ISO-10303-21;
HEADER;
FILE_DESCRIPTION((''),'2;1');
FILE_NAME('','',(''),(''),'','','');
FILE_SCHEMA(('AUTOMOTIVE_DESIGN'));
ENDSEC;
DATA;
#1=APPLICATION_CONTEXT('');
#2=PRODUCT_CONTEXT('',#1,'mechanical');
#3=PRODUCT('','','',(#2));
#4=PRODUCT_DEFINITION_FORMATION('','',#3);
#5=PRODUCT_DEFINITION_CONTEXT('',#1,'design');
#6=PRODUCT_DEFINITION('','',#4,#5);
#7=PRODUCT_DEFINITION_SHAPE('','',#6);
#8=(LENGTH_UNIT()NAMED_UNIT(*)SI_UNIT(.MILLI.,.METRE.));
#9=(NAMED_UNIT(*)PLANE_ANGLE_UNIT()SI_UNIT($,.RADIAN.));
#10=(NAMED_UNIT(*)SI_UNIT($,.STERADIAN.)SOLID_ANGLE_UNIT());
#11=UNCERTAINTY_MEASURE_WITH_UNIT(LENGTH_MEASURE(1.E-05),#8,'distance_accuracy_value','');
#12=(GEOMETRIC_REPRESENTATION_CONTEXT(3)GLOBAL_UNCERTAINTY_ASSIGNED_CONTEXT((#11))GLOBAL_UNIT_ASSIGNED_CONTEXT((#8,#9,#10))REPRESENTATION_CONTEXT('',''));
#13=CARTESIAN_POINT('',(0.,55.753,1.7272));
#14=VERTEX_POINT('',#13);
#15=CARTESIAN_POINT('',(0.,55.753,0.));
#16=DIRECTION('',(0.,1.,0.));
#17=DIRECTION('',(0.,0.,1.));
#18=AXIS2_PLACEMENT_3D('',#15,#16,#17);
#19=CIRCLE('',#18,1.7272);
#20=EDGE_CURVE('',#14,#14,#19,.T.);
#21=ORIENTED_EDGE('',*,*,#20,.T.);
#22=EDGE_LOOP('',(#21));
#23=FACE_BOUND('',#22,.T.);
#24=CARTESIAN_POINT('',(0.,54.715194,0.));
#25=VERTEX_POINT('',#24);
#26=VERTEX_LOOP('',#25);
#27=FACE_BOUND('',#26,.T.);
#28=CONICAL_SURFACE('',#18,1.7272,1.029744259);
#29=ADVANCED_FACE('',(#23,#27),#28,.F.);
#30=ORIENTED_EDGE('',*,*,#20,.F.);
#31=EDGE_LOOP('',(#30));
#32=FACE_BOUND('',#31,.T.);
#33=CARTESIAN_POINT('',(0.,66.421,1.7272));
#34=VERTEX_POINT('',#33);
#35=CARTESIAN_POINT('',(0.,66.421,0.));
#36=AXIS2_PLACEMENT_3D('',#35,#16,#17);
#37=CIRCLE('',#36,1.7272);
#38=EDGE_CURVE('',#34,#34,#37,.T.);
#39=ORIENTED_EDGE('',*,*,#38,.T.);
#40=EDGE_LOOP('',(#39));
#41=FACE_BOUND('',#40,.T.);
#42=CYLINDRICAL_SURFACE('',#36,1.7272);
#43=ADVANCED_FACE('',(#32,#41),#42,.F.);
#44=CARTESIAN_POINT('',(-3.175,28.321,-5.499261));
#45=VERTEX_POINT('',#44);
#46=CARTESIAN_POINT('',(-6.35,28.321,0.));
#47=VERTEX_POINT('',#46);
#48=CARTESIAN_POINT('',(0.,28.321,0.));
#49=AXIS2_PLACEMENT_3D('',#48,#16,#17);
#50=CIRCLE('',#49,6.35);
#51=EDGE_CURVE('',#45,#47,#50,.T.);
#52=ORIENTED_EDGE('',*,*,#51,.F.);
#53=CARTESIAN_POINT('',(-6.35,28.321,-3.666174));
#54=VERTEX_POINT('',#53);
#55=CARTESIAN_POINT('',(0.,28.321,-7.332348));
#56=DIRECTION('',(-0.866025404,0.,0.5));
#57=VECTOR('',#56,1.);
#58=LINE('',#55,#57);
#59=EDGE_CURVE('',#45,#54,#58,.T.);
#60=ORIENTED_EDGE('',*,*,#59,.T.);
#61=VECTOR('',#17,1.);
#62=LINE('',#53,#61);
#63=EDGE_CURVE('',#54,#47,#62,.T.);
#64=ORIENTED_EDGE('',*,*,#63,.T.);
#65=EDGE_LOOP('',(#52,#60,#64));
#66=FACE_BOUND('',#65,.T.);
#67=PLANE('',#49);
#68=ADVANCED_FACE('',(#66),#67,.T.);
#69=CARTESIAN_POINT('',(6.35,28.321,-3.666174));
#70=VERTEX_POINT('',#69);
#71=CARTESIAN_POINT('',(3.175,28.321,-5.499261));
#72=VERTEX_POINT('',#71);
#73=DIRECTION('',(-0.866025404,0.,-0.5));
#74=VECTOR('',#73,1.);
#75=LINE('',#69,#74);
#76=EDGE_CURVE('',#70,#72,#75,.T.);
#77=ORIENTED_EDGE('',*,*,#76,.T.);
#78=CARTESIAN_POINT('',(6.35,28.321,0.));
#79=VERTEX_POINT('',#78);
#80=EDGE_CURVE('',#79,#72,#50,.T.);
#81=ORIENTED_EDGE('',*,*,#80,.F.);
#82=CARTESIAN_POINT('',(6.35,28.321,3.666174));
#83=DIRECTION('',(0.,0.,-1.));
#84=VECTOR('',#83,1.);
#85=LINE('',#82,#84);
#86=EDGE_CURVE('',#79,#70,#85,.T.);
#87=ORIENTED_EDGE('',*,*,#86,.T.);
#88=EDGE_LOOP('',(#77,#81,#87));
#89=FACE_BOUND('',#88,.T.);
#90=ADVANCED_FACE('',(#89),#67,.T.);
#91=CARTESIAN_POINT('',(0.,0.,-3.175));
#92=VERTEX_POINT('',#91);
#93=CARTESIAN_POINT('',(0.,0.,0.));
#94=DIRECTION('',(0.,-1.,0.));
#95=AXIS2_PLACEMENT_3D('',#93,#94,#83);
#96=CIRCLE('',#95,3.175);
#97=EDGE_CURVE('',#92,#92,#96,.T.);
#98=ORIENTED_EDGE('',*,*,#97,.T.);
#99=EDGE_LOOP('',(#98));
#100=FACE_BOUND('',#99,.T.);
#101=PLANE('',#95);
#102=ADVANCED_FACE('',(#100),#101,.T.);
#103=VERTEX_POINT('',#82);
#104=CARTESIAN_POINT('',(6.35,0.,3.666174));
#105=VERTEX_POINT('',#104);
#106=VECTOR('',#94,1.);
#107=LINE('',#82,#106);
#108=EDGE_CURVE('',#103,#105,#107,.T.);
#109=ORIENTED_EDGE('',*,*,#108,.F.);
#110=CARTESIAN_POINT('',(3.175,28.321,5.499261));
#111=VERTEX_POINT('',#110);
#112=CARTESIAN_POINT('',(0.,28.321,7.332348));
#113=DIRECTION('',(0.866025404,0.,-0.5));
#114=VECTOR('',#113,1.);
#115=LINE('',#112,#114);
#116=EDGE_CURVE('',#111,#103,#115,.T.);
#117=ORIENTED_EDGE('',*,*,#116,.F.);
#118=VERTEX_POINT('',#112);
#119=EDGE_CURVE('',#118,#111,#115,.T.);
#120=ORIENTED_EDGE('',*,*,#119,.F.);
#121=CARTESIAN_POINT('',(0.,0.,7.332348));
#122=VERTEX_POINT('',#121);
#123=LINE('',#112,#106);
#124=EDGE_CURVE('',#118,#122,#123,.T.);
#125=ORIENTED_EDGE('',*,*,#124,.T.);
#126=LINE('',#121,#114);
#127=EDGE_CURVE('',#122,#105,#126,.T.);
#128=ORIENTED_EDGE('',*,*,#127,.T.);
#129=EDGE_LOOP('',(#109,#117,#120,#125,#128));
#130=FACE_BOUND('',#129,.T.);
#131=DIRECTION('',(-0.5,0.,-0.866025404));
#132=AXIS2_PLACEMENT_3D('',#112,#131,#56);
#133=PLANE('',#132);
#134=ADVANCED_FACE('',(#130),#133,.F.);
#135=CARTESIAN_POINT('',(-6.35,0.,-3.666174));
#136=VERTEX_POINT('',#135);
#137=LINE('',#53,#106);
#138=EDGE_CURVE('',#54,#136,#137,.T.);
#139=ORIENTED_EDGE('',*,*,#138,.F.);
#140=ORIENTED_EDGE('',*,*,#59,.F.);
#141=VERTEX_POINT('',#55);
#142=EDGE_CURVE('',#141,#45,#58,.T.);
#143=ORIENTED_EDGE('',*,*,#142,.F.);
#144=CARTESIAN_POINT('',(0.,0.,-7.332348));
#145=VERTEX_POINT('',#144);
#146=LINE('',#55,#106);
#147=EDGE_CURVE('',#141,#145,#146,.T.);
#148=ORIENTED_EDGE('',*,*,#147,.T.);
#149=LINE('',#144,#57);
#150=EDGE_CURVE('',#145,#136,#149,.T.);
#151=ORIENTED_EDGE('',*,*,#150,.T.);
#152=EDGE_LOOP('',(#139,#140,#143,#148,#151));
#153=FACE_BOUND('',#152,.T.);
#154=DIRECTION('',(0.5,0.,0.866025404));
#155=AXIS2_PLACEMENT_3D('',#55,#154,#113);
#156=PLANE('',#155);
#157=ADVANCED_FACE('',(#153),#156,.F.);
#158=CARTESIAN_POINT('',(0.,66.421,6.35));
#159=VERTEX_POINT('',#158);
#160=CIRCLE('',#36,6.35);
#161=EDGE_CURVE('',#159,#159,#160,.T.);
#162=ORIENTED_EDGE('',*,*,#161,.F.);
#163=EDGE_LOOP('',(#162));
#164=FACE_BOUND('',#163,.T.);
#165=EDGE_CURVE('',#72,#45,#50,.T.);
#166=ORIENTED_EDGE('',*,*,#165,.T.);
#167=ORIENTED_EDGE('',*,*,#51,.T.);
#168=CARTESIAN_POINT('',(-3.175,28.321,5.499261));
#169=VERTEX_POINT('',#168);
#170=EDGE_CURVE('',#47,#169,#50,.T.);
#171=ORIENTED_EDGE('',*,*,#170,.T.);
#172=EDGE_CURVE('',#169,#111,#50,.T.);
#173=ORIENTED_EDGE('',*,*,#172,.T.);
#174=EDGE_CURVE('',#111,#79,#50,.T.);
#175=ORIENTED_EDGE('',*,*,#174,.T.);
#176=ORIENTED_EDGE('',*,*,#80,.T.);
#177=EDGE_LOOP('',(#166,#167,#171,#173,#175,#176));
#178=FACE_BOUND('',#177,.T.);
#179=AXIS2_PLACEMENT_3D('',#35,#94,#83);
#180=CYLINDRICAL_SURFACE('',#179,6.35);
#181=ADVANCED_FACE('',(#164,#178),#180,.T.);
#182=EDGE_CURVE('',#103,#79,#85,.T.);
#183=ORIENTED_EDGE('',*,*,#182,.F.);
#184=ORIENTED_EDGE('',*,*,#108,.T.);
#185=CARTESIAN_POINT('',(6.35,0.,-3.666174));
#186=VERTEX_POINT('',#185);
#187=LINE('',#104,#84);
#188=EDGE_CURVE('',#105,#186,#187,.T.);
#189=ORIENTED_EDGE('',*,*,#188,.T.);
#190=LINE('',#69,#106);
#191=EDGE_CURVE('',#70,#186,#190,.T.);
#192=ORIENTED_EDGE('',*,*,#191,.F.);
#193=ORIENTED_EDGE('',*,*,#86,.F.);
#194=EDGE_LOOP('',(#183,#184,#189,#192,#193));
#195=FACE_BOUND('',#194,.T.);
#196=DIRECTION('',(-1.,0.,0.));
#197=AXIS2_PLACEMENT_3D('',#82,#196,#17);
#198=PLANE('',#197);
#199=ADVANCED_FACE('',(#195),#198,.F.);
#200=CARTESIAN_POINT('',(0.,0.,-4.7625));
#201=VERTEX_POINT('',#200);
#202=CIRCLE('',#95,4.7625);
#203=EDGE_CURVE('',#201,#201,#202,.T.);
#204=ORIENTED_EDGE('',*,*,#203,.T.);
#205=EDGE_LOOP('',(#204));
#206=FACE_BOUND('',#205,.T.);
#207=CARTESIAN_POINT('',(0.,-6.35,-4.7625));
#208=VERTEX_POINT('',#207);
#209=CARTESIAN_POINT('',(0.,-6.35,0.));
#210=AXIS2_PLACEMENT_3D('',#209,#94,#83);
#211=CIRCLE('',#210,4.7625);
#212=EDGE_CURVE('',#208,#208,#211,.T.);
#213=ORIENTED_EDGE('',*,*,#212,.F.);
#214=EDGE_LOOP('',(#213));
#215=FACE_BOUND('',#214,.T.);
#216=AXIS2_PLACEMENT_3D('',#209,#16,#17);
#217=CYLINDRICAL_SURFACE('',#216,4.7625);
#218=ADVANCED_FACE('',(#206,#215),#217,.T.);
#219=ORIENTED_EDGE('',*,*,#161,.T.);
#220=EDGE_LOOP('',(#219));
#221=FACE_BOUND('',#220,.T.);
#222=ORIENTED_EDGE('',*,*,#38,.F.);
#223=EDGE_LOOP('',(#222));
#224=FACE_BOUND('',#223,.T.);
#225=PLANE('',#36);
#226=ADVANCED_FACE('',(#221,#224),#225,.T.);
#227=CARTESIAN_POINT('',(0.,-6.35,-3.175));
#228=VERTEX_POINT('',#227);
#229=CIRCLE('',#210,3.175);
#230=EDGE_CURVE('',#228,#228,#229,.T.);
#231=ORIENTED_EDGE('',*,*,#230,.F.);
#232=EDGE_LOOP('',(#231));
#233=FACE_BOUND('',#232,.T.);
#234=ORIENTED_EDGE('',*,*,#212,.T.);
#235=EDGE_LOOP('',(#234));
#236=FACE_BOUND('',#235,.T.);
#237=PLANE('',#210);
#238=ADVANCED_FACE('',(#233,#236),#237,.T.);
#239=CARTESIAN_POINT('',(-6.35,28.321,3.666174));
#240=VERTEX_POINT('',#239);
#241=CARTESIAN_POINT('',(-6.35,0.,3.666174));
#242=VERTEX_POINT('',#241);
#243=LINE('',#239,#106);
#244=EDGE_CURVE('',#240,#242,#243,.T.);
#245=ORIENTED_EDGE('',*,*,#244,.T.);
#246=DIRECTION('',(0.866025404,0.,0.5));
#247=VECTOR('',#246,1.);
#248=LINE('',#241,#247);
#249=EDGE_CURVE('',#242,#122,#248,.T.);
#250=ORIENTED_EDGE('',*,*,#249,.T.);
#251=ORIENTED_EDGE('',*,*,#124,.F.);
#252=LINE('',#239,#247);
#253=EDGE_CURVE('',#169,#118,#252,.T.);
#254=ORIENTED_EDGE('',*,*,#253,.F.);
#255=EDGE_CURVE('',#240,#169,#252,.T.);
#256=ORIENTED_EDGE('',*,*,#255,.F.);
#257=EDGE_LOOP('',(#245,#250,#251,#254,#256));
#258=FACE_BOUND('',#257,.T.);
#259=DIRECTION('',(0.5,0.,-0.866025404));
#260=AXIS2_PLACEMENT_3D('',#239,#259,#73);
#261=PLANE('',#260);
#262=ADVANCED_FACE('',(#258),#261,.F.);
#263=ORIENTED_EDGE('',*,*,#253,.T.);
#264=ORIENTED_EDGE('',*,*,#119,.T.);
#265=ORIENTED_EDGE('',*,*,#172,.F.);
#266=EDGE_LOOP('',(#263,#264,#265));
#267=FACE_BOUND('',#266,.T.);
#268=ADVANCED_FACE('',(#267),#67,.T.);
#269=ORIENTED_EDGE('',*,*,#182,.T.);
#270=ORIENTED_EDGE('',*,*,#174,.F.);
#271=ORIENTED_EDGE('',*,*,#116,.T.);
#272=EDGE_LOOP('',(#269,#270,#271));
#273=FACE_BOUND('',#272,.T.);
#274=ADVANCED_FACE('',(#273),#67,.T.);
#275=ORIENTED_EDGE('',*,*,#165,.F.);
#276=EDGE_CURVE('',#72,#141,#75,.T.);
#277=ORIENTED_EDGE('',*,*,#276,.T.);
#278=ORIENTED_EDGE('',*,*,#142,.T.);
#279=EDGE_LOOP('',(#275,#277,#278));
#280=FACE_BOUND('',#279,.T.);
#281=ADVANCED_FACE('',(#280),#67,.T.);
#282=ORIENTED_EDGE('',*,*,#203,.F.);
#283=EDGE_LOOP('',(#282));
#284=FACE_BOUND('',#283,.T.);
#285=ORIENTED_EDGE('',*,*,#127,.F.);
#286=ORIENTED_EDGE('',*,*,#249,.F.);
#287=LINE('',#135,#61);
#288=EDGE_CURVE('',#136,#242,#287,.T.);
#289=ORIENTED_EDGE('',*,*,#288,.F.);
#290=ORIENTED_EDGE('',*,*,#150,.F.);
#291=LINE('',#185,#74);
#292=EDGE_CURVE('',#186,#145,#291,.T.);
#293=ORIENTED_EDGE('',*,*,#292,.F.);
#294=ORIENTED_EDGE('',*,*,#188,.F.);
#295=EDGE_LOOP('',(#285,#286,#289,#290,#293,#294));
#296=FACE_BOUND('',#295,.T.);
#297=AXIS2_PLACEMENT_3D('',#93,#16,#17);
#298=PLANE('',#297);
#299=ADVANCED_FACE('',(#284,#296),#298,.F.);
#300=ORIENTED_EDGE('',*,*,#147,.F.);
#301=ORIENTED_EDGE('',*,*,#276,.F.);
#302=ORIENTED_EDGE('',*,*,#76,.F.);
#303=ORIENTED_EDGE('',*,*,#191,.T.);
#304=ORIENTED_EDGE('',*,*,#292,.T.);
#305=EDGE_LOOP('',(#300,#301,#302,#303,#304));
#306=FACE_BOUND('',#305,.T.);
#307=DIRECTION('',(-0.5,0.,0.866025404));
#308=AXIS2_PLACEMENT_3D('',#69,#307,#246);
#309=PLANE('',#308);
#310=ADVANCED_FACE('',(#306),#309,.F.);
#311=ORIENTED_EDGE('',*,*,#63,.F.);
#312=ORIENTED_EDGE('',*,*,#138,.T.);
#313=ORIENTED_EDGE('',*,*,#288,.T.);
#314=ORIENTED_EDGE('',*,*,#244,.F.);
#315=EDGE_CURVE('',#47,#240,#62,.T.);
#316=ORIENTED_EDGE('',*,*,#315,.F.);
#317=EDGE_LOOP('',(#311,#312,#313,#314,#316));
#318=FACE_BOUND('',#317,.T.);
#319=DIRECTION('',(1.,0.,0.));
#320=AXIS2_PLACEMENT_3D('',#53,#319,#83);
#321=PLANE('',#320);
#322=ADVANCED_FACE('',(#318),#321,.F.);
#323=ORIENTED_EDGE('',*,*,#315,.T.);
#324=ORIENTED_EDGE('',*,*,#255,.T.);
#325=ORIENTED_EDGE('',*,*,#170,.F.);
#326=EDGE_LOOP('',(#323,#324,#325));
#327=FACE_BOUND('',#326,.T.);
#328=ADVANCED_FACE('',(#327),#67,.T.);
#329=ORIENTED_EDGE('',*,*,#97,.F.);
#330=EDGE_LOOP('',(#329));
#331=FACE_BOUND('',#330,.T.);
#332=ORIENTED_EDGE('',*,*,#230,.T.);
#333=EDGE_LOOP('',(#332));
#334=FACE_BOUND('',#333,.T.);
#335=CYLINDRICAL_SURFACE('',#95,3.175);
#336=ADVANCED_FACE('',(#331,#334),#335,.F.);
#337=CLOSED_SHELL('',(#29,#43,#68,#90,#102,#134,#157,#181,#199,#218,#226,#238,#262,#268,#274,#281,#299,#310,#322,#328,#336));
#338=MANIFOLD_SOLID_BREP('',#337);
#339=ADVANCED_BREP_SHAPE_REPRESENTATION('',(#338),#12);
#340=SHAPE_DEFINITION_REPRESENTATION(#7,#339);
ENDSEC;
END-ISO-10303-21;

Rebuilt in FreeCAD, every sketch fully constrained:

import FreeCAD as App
import Part
import Sketcher
Q = App.Units.Quantity

doc = App.newDocument("Part")
body = doc.addObject("PartDesign::Body", "Body")

# Sketch on XZ plane
sketch1 = doc.addObject("Sketcher::SketchObject", "Sketch")
body.addObject(sketch1)
sketch1.AttachmentSupport = (doc.XZ_Plane, [""])
sketch1.MapMode = "FlatFace"
sketch1.addGeometry(Part.LineSegment(App.Vector(6.35, 3.666174, 0), App.Vector(6.35, -3.666174, 0)), False)
sketch1.addGeometry(Part.LineSegment(App.Vector(6.35, -3.666174, 0), App.Vector(0, -7.332348, 0)), False)
sketch1.addGeometry(Part.LineSegment(App.Vector(0, -7.332348, 0), App.Vector(-6.35, -3.666174, 0)), False)
sketch1.addGeometry(Part.LineSegment(App.Vector(-6.35, -3.666174, 0), App.Vector(-6.35, 3.666174, 0)), False)
sketch1.addGeometry(Part.LineSegment(App.Vector(-6.35, 3.666174, 0), App.Vector(0, 7.332348, 0)), False)
sketch1.addGeometry(Part.LineSegment(App.Vector(0, 7.332348, 0), App.Vector(6.35, 3.666174, 0)), False)
sketch1.addConstraint(Sketcher.Constraint("Coincident", 0, 2, 1, 1))
sketch1.addConstraint(Sketcher.Constraint("Coincident", 1, 2, 2, 1))
sketch1.addConstraint(Sketcher.Constraint("Coincident", 2, 2, 3, 1))
sketch1.addConstraint(Sketcher.Constraint("Coincident", 3, 2, 4, 1))
sketch1.addConstraint(Sketcher.Constraint("Coincident", 4, 2, 5, 1))
sketch1.addConstraint(Sketcher.Constraint("Coincident", 5, 2, 0, 1))
sketch1.addConstraint(Sketcher.Constraint("Vertical", 0))
sketch1.addConstraint(Sketcher.Constraint("Vertical", 3))
sketch1.addConstraint(Sketcher.Constraint("Symmetric", 0, 2, 3, 2, -1, 1))
sketch1.addConstraint(Sketcher.Constraint("Symmetric", 1, 2, 4, 2, -1, 1))
sketch1.addConstraint(Sketcher.Constraint("PointOnObject", 1, 2, -2))
sketch1.addConstraint(Sketcher.Constraint("Parallel", 2, 5))
sketch1.addConstraint(Sketcher.Constraint("Horizontal", 0, 2, 2, 2))
sketch1.addConstraint(Sketcher.Constraint("Angle", 1, Q("-150 deg")))
sketch1.addConstraint(Sketcher.Constraint("DistanceX", 2, 2, 0, 2, Q("0.5 in")))
sketch1.addConstraint(Sketcher.Constraint("DistanceY", 0, 2, 0, 1, Q("7.332348 mm")))
pad1 = doc.addObject("PartDesign::Pad", "Pad")
body.addObject(pad1)
pad1.Profile = sketch1
pad1.Length = Q("1.115 in")
pad1.Reversed = True

# Sketch on XZ plane
sketch2 = doc.addObject("Sketcher::SketchObject", "Sketch001")
body.addObject(sketch2)
sketch2.AttachmentSupport = (doc.XZ_Plane, [""])
sketch2.MapMode = "FlatFace"
sketch2.addGeometry(Part.Circle(App.Vector(0, 0, 0), App.Vector(0, 0, 1), 4.7625), False)
sketch2.addConstraint(Sketcher.Constraint("Coincident", 0, 3, -1, 1))
sketch2.addConstraint(Sketcher.Constraint("Diameter", 0, Q("0.375 in")))
pad2 = doc.addObject("PartDesign::Pad", "Pad001")
body.addObject(pad2)
pad2.Profile = sketch2
pad2.Length = Q("0.25 in")

# Sketch on XZ plane
sketch3 = doc.addObject("Sketcher::SketchObject", "Sketch002")
body.addObject(sketch3)
sketch3.AttachmentSupport = (doc.XZ_Plane, [""])
sketch3.MapMode = "FlatFace"
sketch3.AttachmentOffset = App.Placement(App.Vector(0, 0, -1.115 * 25.4), App.Rotation())
sketch3.addGeometry(Part.Circle(App.Vector(0, 0, 0), App.Vector(0, 0, 1), 6.35), False)
sketch3.addConstraint(Sketcher.Constraint("Coincident", 0, 3, -1, 1))
sketch3.addConstraint(Sketcher.Constraint("Diameter", 0, Q("0.5 in")))
pad3 = doc.addObject("PartDesign::Pad", "Pad002")
body.addObject(pad3)
pad3.Profile = sketch3
pad3.Length = Q("1.5 in")
pad3.Reversed = True

# Sketch on XZ plane
sketch4 = doc.addObject("Sketcher::SketchObject", "Sketch003")
body.addObject(sketch4)
sketch4.AttachmentSupport = (doc.XZ_Plane, [""])
sketch4.MapMode = "FlatFace"
sketch4.AttachmentOffset = App.Placement(App.Vector(0, 0, -2.615 * 25.4), App.Rotation())
sketch4.addGeometry(Part.Circle(App.Vector(0, 0, 0), App.Vector(0, 0, 1), 1.7272), False)
sketch4.addConstraint(Sketcher.Constraint("Coincident", 0, 3, -1, 1))
sketch4.addConstraint(Sketcher.Constraint("Diameter", 0, Q("0.136 in")))
doc.recompute()
hole = doc.addObject("PartDesign::Hole", "Hole")
body.addObject(hole)
hole.Profile = sketch4
hole.ThreadType = "None"
hole.Diameter = Q("0.136 in")
hole.DepthType = "Dimension"
hole.Depth = Q("0.42 in")
hole.DrillPoint = "Angled"
hole.DrillPointAngle = 118
hole.Reversed = True

# Sketch on XZ plane
sketch5 = doc.addObject("Sketcher::SketchObject", "Sketch004")
body.addObject(sketch5)
sketch5.AttachmentSupport = (doc.XZ_Plane, [""])
sketch5.MapMode = "FlatFace"
sketch5.AttachmentOffset = App.Placement(App.Vector(0, 0, 0.25 * 25.4), App.Rotation())
sketch5.addGeometry(Part.Circle(App.Vector(0, 0, 0), App.Vector(0, 0, 1), 3.175), False)
sketch5.addConstraint(Sketcher.Constraint("Coincident", 0, 3, -1, 1))
sketch5.addConstraint(Sketcher.Constraint("Diameter", 0, Q("0.25 in")))
pocket1 = doc.addObject("PartDesign::Pocket", "Pocket")
body.addObject(pocket1)
pocket1.Profile = sketch5
pocket1.Length = Q("0.25 in")

doc.recompute()
